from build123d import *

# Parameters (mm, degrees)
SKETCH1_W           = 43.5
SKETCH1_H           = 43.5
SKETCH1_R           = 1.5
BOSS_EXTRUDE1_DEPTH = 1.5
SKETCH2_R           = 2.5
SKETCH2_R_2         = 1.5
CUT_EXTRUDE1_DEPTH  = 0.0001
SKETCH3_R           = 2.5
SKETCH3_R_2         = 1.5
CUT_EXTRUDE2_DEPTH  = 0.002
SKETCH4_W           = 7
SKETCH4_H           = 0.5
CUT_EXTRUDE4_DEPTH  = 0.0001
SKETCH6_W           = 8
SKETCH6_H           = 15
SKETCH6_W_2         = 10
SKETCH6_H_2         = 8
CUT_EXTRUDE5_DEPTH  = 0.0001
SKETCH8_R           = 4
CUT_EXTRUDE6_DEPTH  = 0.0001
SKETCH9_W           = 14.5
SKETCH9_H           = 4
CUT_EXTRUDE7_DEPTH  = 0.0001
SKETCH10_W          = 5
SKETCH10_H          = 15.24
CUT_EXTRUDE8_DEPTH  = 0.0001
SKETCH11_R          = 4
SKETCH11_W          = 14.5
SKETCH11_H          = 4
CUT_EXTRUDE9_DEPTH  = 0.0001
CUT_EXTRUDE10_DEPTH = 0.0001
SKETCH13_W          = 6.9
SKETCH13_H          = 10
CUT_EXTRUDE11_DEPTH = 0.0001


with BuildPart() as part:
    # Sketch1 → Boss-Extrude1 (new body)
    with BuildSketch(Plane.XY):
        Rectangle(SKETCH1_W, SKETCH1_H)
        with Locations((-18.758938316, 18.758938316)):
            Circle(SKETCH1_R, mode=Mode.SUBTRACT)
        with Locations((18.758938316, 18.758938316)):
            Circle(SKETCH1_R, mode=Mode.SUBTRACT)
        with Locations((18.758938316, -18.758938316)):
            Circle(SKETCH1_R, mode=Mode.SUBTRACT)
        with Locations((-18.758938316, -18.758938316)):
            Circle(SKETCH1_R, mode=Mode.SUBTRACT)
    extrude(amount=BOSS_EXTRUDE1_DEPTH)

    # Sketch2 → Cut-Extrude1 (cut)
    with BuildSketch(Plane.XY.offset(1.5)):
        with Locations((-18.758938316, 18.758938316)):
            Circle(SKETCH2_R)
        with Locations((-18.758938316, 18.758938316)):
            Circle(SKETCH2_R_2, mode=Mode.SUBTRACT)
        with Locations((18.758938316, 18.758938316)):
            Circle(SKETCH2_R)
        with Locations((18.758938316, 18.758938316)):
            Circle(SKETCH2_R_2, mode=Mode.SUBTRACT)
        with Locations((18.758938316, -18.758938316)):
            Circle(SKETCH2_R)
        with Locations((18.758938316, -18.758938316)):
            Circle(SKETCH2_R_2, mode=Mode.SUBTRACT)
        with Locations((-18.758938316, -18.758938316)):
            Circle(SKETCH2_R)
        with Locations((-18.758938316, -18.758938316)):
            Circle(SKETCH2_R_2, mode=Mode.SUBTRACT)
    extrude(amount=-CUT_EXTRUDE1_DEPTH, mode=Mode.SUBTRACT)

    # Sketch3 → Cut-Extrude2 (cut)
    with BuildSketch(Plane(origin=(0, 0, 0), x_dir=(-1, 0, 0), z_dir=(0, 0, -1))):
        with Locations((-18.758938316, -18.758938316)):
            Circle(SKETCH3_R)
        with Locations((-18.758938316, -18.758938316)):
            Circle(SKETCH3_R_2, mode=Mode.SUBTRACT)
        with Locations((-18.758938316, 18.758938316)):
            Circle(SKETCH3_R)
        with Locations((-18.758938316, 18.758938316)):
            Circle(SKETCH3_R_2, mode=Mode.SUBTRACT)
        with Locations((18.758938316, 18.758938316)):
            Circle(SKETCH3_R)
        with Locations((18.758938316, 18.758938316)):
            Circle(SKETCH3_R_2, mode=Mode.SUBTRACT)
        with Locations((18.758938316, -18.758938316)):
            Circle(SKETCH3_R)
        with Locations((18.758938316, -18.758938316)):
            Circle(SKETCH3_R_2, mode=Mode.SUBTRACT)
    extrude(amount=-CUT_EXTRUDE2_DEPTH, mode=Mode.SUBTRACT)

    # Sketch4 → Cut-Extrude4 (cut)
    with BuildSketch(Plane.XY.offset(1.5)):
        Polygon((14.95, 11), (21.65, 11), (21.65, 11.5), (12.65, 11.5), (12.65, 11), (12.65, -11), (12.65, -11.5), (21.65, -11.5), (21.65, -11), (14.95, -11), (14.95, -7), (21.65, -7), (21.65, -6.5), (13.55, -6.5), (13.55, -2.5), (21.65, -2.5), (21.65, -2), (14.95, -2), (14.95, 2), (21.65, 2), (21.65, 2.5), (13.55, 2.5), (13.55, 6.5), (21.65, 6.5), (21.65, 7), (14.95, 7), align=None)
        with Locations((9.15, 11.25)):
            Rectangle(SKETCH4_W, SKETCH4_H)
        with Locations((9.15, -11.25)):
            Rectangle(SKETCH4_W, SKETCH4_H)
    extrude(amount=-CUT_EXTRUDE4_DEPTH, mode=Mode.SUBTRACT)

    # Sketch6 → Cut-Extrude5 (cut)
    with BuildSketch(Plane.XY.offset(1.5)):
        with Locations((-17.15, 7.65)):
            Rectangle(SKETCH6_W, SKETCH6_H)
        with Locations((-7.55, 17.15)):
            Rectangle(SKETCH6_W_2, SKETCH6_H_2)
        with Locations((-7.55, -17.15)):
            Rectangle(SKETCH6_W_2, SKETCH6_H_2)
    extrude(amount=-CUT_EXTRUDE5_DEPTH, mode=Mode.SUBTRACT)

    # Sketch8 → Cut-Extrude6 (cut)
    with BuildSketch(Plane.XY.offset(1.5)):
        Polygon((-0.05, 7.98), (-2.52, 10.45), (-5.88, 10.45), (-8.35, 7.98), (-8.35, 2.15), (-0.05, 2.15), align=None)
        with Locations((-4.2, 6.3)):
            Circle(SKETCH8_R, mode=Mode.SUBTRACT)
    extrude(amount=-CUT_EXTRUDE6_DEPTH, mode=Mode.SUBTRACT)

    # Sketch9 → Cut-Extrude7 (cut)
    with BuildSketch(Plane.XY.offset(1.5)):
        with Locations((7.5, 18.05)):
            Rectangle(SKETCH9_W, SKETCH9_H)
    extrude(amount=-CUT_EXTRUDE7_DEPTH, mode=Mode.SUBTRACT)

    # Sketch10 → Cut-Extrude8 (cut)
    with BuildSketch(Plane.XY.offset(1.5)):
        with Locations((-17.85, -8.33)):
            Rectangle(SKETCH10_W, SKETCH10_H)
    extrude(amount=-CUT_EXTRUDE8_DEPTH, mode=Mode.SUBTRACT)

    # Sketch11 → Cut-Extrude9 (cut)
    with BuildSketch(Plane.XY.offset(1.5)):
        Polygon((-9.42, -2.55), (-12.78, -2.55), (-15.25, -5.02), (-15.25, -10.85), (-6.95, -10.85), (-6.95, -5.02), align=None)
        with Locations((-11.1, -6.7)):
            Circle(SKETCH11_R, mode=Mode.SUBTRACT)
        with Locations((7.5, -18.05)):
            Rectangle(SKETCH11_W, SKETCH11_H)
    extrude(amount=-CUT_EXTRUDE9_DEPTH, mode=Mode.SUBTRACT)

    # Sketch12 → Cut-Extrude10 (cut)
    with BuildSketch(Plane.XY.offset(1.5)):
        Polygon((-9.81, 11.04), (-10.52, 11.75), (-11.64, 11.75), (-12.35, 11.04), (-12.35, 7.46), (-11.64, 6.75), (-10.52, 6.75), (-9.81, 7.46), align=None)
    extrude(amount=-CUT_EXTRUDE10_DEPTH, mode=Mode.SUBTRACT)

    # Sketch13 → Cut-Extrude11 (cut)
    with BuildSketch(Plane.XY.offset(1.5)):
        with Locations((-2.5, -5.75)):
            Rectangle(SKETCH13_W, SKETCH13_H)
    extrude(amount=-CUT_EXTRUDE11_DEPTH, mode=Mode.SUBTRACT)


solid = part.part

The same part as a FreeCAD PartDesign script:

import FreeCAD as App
import Part
import Sketcher
Q = App.Units.Quantity

doc = App.newDocument("Part")
params = doc.addObject("Spreadsheet::Sheet", "Params")
for row, (alias, value) in enumerate([
    ("sketch1_diameter", "3 mm"),
    ("sketch1_width", "43.5 mm"),
    ("pad1_length", "1.5 mm"),
    ("sketch2_diameter", "5 mm"),
    ("sketch2_diameter2", "3 mm"),
    ("pocket1_length", "0.0001 mm"),
    ("sketch3_diameter", "5 mm"),
    ("sketch3_diameter2", "3 mm"),
    ("pocket2_length", "0.002 mm"),
    ("sketch4_width", "16 mm"),
    ("sketch4_width2", "7 mm"),
    ("sketch4_height", "22 mm"),
    ("sketch4_height2", "4 mm"),
    ("sketch4_width3", "6.7 mm"),
    ("pocket3_length", "0.0001 mm"),
    ("sketch5_width", "8 mm"),
    ("sketch5_width2", "10 mm"),
    ("sketch5_height", "15 mm"),
    ("pocket4_length", "0.0001 mm"),
    ("sketch6_diameter", "8 mm"),
    ("sketch6_width", "8.3 mm"),
    ("sketch6_width2", "3.36 mm"),
    ("sketch6_height", "5.83 mm"),
    ("pocket5_length", "0.0001 mm"),
    ("sketch7_height", "4 mm"),
    ("sketch7_width", "14.5 mm"),
    ("pocket6_length", "0.0001 mm"),
    ("sketch8_width", "5 mm"),
    ("sketch8_height", "15.24 mm"),
    ("pocket7_length", "0.0001 mm"),
    ("sketch9_diameter", "8 mm"),
    ("sketch9_height", "4 mm"),
    ("sketch9_width", "8.3 mm"),
    ("sketch9_width2", "14.5 mm"),
    ("sketch9_width3", "3.36 mm"),
    ("pocket8_length", "0.0001 mm"),
    ("sketch10_width", "1.12 mm"),
    ("sketch10_height", "3.58 mm"),
    ("pocket9_length", "0.0001 mm"),
    ("sketch11_height", "10 mm"),
    ("sketch11_width", "6.9 mm"),
    ("pocket10_length", "0.0001 mm"),
], start=1):
    params.set(f"A{row}", alias)
    params.set(f"B{row}", "=" + value)
    params.setAlias(f"B{row}", alias)

body = doc.addObject("PartDesign::Body", "Body")

sketch1 = body.newObject("Sketcher::SketchObject", "Sketch")
sketch1.AttachmentSupport = (doc.getObject("XY_Plane"), [""])
sketch1.MapMode = "FlatFace"
sketch1.addGeometry([
    Part.LineSegment(App.Vector(-21.8, 21.8, 0), App.Vector(-21.8, -21.8, 0)),
    Part.LineSegment(App.Vector(-21.8, -21.8, 0), App.Vector(21.8, -21.8, 0)),
    Part.LineSegment(App.Vector(21.8, -21.8, 0), App.Vector(21.8, 21.8, 0)),
    Part.LineSegment(App.Vector(21.8, 21.8, 0), App.Vector(-21.8, 21.8, 0)),
    Part.Circle(App.Vector(-18.8, -18.8, 0), App.Vector(0, 0, 1), 1.5),
    Part.Circle(App.Vector(18.8, -18.8, 0), App.Vector(0, 0, 1), 1.5),
    Part.Circle(App.Vector(-18.8, 18.8, 0), App.Vector(0, 0, 1), 1.5),
    Part.Circle(App.Vector(18.8, 18.8, 0), App.Vector(0, 0, 1), 1.5),
], False)
sketch1.addConstraint([
    Sketcher.Constraint("Coincident", 0, 2, 1, 1),
    Sketcher.Constraint("Coincident", 1, 2, 2, 1),
    Sketcher.Constraint("Coincident", 2, 2, 3, 1),
    Sketcher.Constraint("Coincident", 3, 2, 0, 1),
    Sketcher.Constraint("Vertical", 0),
    Sketcher.Constraint("Horizontal", 1),
    Sketcher.Constraint("Vertical", 2),
    Sketcher.Constraint("Horizontal", 3),
    Sketcher.Constraint("Equal", 4, 5),
    Sketcher.Constraint("Equal", 5, 6),
    Sketcher.Constraint("Equal", 6, 7),
    Sketcher.Constraint("Symmetric", 5, 3, 6, 3, -1, 1),
    Sketcher.Constraint("Symmetric", 4, 3, 7, 3, -1, 1),
    Sketcher.Constraint("Symmetric", 0, 2, 2, 2, -1, 1),
    Sketcher.Constraint("Symmetric", 4, 3, 5, 3, -2),
    Sketcher.Constraint("Equal", 3, 0),
    Sketcher.Constraint("Diameter", 4, Q("3 mm")),
    Sketcher.Constraint("DistanceX", 1, 1, 1, 2, Q("43.5 mm")),
    Sketcher.Constraint("DistanceX", 4, 3, -1, 1, Q("18.758938 mm")),
    Sketcher.Constraint("DistanceY", 4, 3, -1, 1, Q("18.758938 mm")),
])
sketch1.setExpression("Constraints[16]", "Params.sketch1_diameter")
sketch1.setExpression("Constraints[17]", "Params.sketch1_width")
pad1 = body.newObject("PartDesign::Pad", "Pad")
pad1.Profile = sketch1
pad1.setExpression("Length", "Params.pad1_length")

sketch2 = body.newObject("Sketcher::SketchObject", "Sketch001")
sketch2.AttachmentSupport = (doc.getObject("XY_Plane"), [""])
sketch2.MapMode = "FlatFace"
sketch2.AttachmentOffset = App.Placement(App.Vector(0, 0, 1.5), App.Rotation())
sketch2.addGeometry([
    Part.Circle(App.Vector(-18.8, 18.8, 0), App.Vector(0, 0, 1), 2.5),
    Part.Circle(App.Vector(-18.8, 18.8, 0), App.Vector(0, 0, 1), 1.5),
    Part.Circle(App.Vector(18.8, 18.8, 0), App.Vector(0, 0, 1), 2.5),
    Part.Circle(App.Vector(18.8, 18.8, 0), App.Vector(0, 0, 1), 1.5),
    Part.Circle(App.Vector(18.8, -18.8, 0), App.Vector(0, 0, 1), 2.5),
    Part.Circle(App.Vector(18.8, -18.8, 0), App.Vector(0, 0, 1), 1.5),
    Part.Circle(App.Vector(-18.8, -18.8, 0), App.Vector(0, 0, 1), 2.5),
    Part.Circle(App.Vector(-18.8, -18.8, 0), App.Vector(0, 0, 1), 1.5),
], False)
sketch2.addConstraint([
    Sketcher.Constraint("Coincident", 1, 3, 0, 3),
    Sketcher.Constraint("Coincident", 3, 3, 2, 3),
    Sketcher.Constraint("Coincident", 5, 3, 4, 3),
    Sketcher.Constraint("Coincident", 7, 3, 6, 3),
    Sketcher.Constraint("Equal", 0, 2),
    Sketcher.Constraint("Equal", 1, 3),
    Sketcher.Constraint("Equal", 2, 4),
    Sketcher.Constraint("Equal", 3, 5),
    Sketcher.Constraint("Equal", 4, 6),
    Sketcher.Constraint("Equal", 5, 7),
    Sketcher.Constraint("Symmetric", 0, 3, 4, 3, -1, 1),
    Sketcher.Constraint("Symmetric", 2, 3, 6, 3, -1, 1),
    Sketcher.Constraint("Symmetric", 0, 3, 2, 3, -2),
    Sketcher.Constraint("Diameter", 0, Q("5 mm")),
    Sketcher.Constraint("Diameter", 1, Q("3 mm")),
    Sketcher.Constraint("DistanceX", 0, 3, -1, 1, Q("18.758938 mm")),
    Sketcher.Constraint("DistanceY", -1, 1, 0, 3, Q("18.758938 mm")),
])
sketch2.setExpression("Constraints[13]", "Params.sketch2_diameter")
sketch2.setExpression("Constraints[14]", "Params.sketch2_diameter2")
pocket1 = body.newObject("PartDesign::Pocket", "Pocket")
pocket1.Profile = sketch2
pocket1.setExpression("Length", "Params.pocket1_length")

sketch3 = body.newObject("Sketcher::SketchObject", "Sketch002")
sketch3.AttachmentSupport = (doc.getObject("XY_Plane"), [""])
sketch3.MapMode = "FlatFace"
sketch3.addGeometry([
    Part.Circle(App.Vector(18.8, -18.8, 0), App.Vector(0, 0, 1), 2.5),
    Part.Circle(App.Vector(18.8, -18.8, 0), App.Vector(0, 0, 1), 1.5),
    Part.Circle(App.Vector(18.8, 18.8, 0), App.Vector(0, 0, 1), 2.5),
    Part.Circle(App.Vector(18.8, 18.8, 0), App.Vector(0, 0, 1), 1.5),
    Part.Circle(App.Vector(-18.8, 18.8, 0), App.Vector(0, 0, 1), 2.5),
    Part.Circle(App.Vector(-18.8, 18.8, 0), App.Vector(0, 0, 1), 1.5),
    Part.Circle(App.Vector(-18.8, -18.8, 0), App.Vector(0, 0, 1), 2.5),
    Part.Circle(App.Vector(-18.8, -18.8, 0), App.Vector(0, 0, 1), 1.5),
], False)
sketch3.addConstraint([
    Sketcher.Constraint("Coincident", 1, 3, 0, 3),
    Sketcher.Constraint("Coincident", 3, 3, 2, 3),
    Sketcher.Constraint("Coincident", 5, 3, 4, 3),
    Sketcher.Constraint("Coincident", 7, 3, 6, 3),
    Sketcher.Constraint("Equal", 0, 2),
    Sketcher.Constraint("Equal", 1, 3),
    Sketcher.Constraint("Equal", 2, 4),
    Sketcher.Constraint("Equal", 3, 5),
    Sketcher.Constraint("Equal", 4, 6),
    Sketcher.Constraint("Equal", 5, 7),
    Sketcher.Constraint("Symmetric", 0, 3, 4, 3, -1, 1),
    Sketcher.Constraint("Symmetric", 2, 3, 6, 3, -1, 1),
    Sketcher.Constraint("Symmetric", 2, 3, 4, 3, -2),
    Sketcher.Constraint("Diameter", 0, Q("5 mm")),
    Sketcher.Constraint("Diameter", 1, Q("3 mm")),
    Sketcher.Constraint("DistanceX", -1, 1, 0, 3, Q("18.758938 mm")),
    Sketcher.Constraint("DistanceY", 0, 3, -1, 1, Q("18.758938 mm")),
])
sketch3.setExpression("Constraints[13]", "Params.sketch3_diameter")
sketch3.setExpression("Constraints[14]", "Params.sketch3_diameter2")
pocket2 = body.newObject("PartDesign::Pocket", "Pocket001")
pocket2.Profile = sketch3
pocket2.setExpression("Length", "Params.pocket2_length")
pocket2.Reversed = True

sketch4 = body.newObject("Sketcher::SketchObject", "Sketch003")
sketch4.AttachmentSupport = (doc.getObject("XY_Plane"), [""])
sketch4.MapMode = "FlatFace"
sketch4.AttachmentOffset = App.Placement(App.Vector(0, 0, 1.5), App.Rotation())
sketch4.addGeometry([
    Part.LineSegment(App.Vector(14.9, 11, 0), App.Vector(21.6, 11, 0)),
    Part.LineSegment(App.Vector(21.6, 11, 0), App.Vector(21.6, 11.5, 0)),
    Part.LineSegment(App.Vector(21.6, 11.5, 0), App.Vector(5.7, 11.5, 0)),
    Part.LineSegment(App.Vector(5.7, 11.5, 0), App.Vector(5.7, 11, 0)),
    Part.LineSegment(App.Vector(5.7, 11, 0), App.Vector(12.7, 11, 0)),
    Part.LineSegment(App.Vector(12.7, 11, 0), App.Vector(12.7, -11, 0)),
    Part.LineSegment(App.Vector(12.7, -11, 0), App.Vector(5.7, -11, 0)),
    Part.LineSegment(App.Vector(5.7, -11, 0), App.Vector(5.7, -11.5, 0)),
    Part.LineSegment(App.Vector(5.7, -11.5, 0), App.Vector(21.6, -11.5, 0)),
    Part.LineSegment(App.Vector(21.6, -11.5, 0), App.Vector(21.6, -11, 0)),
    Part.LineSegment(App.Vector(21.6, -11, 0), App.Vector(14.9, -11, 0)),
    Part.LineSegment(App.Vector(14.9, -11, 0), App.Vector(14.9, -7, 0)),
    Part.LineSegment(App.Vector(14.9, -7, 0), App.Vector(21.6, -7, 0)),
    Part.LineSegment(App.Vector(21.6, -7, 0), App.Vector(21.6, -6.5, 0)),
    Part.LineSegment(App.Vector(21.6, -6.5, 0), App.Vector(13.6, -6.5, 0)),
    Part.LineSegment(App.Vector(13.6, -6.5, 0), App.Vector(13.6, -2.5, 0)),
    Part.LineSegment(App.Vector(13.6, -2.5, 0), App.Vector(21.6, -2.5, 0)),
    Part.LineSegment(App.Vector(21.6, -2.5, 0), App.Vector(21.6, -2, 0)),
    Part.LineSegment(App.Vector(21.6, -2, 0), App.Vector(14.9, -2, 0)),
    Part.LineSegment(App.Vector(14.9, -2, 0), App.Vector(14.9, 2, 0)),
    Part.LineSegment(App.Vector(14.9, 2, 0), App.Vector(21.6, 2, 0)),
    Part.LineSegment(App.Vector(21.6, 2, 0), App.Vector(21.6, 2.5, 0)),
    Part.LineSegment(App.Vector(21.6, 2.5, 0), App.Vector(13.6, 2.5, 0)),
    Part.LineSegment(App.Vector(13.6, 2.5, 0), App.Vector(13.6, 6.5, 0)),
    Part.LineSegment(App.Vector(13.6, 6.5, 0), App.Vector(21.6, 6.5, 0)),
    Part.LineSegment(App.Vector(21.6, 6.5, 0), App.Vector(21.6, 7, 0)),
    Part.LineSegment(App.Vector(21.6, 7, 0), App.Vector(14.9, 7, 0)),
    Part.LineSegment(App.Vector(14.9, 7, 0), App.Vector(14.9, 11, 0)),
], False)
sketch4.addConstraint([
    Sketcher.Constraint("Coincident", 0, 2, 1, 1),
    Sketcher.Constraint("Coincident", 1, 2, 2, 1),
    Sketcher.Constraint("Coincident", 2, 2, 3, 1),
    Sketcher.Constraint("Coincident", 3, 2, 4, 1),
    Sketcher.Constraint("Coincident", 4, 2, 5, 1),
    Sketcher.Constraint("Coincident", 5, 2, 6, 1),
    Sketcher.Constraint("Coincident", 6, 2, 7, 1),
    Sketcher.Constraint("Coincident", 7, 2, 8, 1),
    Sketcher.Constraint("Coincident", 8, 2, 9, 1),
    Sketcher.Constraint("Coincident", 9, 2, 10, 1),
    Sketcher.Constraint("Coincident", 10, 2, 11, 1),
    Sketcher.Constraint("Coincident", 11, 2, 12, 1),
    Sketcher.Constraint("Coincident", 12, 2, 13, 1),
    Sketcher.Constraint("Coincident", 13, 2, 14, 1),
    Sketcher.Constraint("Coincident", 14, 2, 15, 1),
    Sketcher.Constraint("Coincident", 15, 2, 16, 1),
    Sketcher.Constraint("Coincident", 16, 2, 17, 1),
    Sketcher.Constraint("Coincident", 17, 2, 18, 1),
    Sketcher.Constraint("Coincident", 18, 2, 19, 1),
    Sketcher.Constraint("Coincident", 19, 2, 20, 1),
    Sketcher.Constraint("Coincident", 20, 2, 21, 1),
    Sketcher.Constraint("Coincident", 21, 2, 22, 1),
    Sketcher.Constraint("Coincident", 22, 2, 23, 1),
    Sketcher.Constraint("Coincident", 23, 2, 24, 1),
    Sketcher.Constraint("Coincident", 24, 2, 25, 1),
    Sketcher.Constraint("Coincident", 25, 2, 26, 1),
    Sketcher.Constraint("Coincident", 26, 2, 27, 1),
    Sketcher.Constraint("Coincident", 27, 2, 0, 1),
    Sketcher.Constraint("Horizontal", 0),
    Sketcher.Constraint("Vertical", 1),
    Sketcher.Constraint("Horizontal", 2),
    Sketcher.Constraint("Vertical", 3),
    Sketcher.Constraint("Horizontal", 4),
    Sketcher.Constraint("Vertical", 5),
    Sketcher.Constraint("Horizontal", 6),
    Sketcher.Constraint("Vertical", 7),
    Sketcher.Constraint("Horizontal", 8),
    Sketcher.Constraint("Vertical", 9),
    Sketcher.Constraint("Horizontal", 10),
    Sketcher.Constraint("Vertical", 11),
    Sketcher.Constraint("Horizontal", 12),
    Sketcher.Constraint("Vertical", 13),
    Sketcher.Constraint("Horizontal", 14),
    Sketcher.Constraint("Vertical", 15),
    Sketcher.Constraint("Horizontal", 16),
    Sketcher.Constraint("Vertical", 17),
    Sketcher.Constraint("Horizontal", 18),
    Sketcher.Constraint("Vertical", 19),
    Sketcher.Constraint("Horizontal", 20),
    Sketcher.Constraint("Vertical", 21),
    Sketcher.Constraint("Horizontal", 22),
    Sketcher.Constraint("Vertical", 23),
    Sketcher.Constraint("Horizontal", 24),
    Sketcher.Constraint("Vertical", 25),
    Sketcher.Constraint("Horizontal", 26),
    Sketcher.Constraint("Vertical", 27),
    Sketcher.Constraint("Symmetric", 3, 2, 6, 2, -1),
    Sketcher.Constraint("Symmetric", 1, 2, 8, 2, -1),
    Sketcher.Constraint("Symmetric", 17, 2, 20, 2, -1),
    Sketcher.Constraint("Symmetric", 15, 2, 22, 2, -1),
    Sketcher.Constraint("Symmetric", 13, 2, 24, 2, -1),
    Sketcher.Constraint("Symmetric", 11, 2, 26, 2, -1),
    Sketcher.Constraint("Horizontal", 0, 2, 3, 2),
    Sketcher.Constraint("Horizontal", 6, 2, 9, 2),
    Sketcher.Constraint("Vertical", 9, 2, 12, 2),
    Sketcher.Constraint("Vertical", 13, 2, 16, 2),
    Sketcher.Constraint("Vertical", 11, 2, 18, 2),
    Sketcher.Constraint("Equal", 9, 13),
    Sketcher.Constraint("Equal", 11, 15),
    Sketcher.Constraint("Equal", 13, 17),
    Sketcher.Constraint("Equal", 15, 19),
    Sketcher.Constraint("DistanceX", 2, 2, 2, 1, Q("16 mm")),
    Sketcher.Constraint("DistanceX", 4, 1, 4, 2, Q("7 mm")),
    Sketcher.Constraint("DistanceY", 5, 2, 5, 1, Q("22 mm")),
    Sketcher.Constraint("DistanceY", 11, 1, 11, 2, Q("4 mm")),
    Sketcher.Constraint("DistanceX", 0, 1, 0, 2, Q("6.7 mm")),
    Sketcher.Constraint("DistanceX", 14, 2, 14, 1, Q("8.1 mm")),
    Sketcher.Constraint("DistanceX", -1, 1, 0, 2, Q("21.65 mm")),
])
sketch4.setExpression("Constraints[71]", "Params.sketch4_width")
sketch4.setExpression("Constraints[72]", "Params.sketch4_width2")
sketch4.setExpression("Constraints[73]", "Params.sketch4_height")
sketch4.setExpression("Constraints[74]", "Params.sketch4_height2")
sketch4.setExpression("Constraints[75]", "Params.sketch4_width3")
pocket3 = body.newObject("PartDesign::Pocket", "Pocket002")
pocket3.Profile = sketch4
pocket3.setExpression("Length", "Params.pocket3_length")

sketch5 = body.newObject("Sketcher::SketchObject", "Sketch004")
sketch5.AttachmentSupport = (doc.getObject("XY_Plane"), [""])
sketch5.MapMode = "FlatFace"
sketch5.AttachmentOffset = App.Placement(App.Vector(0, 0, 1.5), App.Rotation())
sketch5.addGeometry([
    Part.LineSegment(App.Vector(-21, 15, 0), App.Vector(-21, 0, 0)),
    Part.LineSegment(App.Vector(-21, 0, 0), App.Vector(-13, 0, 0)),
    Part.LineSegment(App.Vector(-13, 0, 0), App.Vector(-13, 15, 0)),
    Part.LineSegment(App.Vector(-13, 15, 0), App.Vector(-21, 15, 0)),
    Part.LineSegment(App.Vector(-13, 21, 0), App.Vector(-13, 13, 0)),
    Part.LineSegment(App.Vector(-13, 13, 0), App.Vector(-3, 13, 0)),
    Part.LineSegment(App.Vector(-3, 13, 0), App.Vector(-3, 21, 0)),
    Part.LineSegment(App.Vector(-3, 21, 0), App.Vector(-13, 21, 0)),
    Part.LineSegment(App.Vector(-13, -13, 0), App.Vector(-13, -21, 0)),
    Part.LineSegment(App.Vector(-13, -21, 0), App.Vector(-3, -21, 0)),
    Part.LineSegment(App.Vector(-3, -21, 0), App.Vector(-3, -13, 0)),
    Part.LineSegment(App.Vector(-3, -13, 0), App.Vector(-13, -13, 0)),
], False)
sketch5.addConstraint([
    Sketcher.Constraint("Coincident", 0, 2, 1, 1),
    Sketcher.Constraint("Coincident", 1, 2, 2, 1),
    Sketcher.Constraint("Coincident", 2, 2, 3, 1),
    Sketcher.Constraint("Coincident", 3, 2, 0, 1),
    Sketcher.Constraint("Coincident", 4, 2, 5, 1),
    Sketcher.Constraint("Coincident", 5, 2, 6, 1),
    Sketcher.Constraint("Coincident", 6, 2, 7, 1),
    Sketcher.Constraint("Coincident", 7, 2, 4, 1),
    Sketcher.Constraint("Coincident", 8, 2, 9, 1),
    Sketcher.Constraint("Coincident", 9, 2, 10, 1),
    Sketcher.Constraint("Coincident", 10, 2, 11, 1),
    Sketcher.Constraint("Coincident", 11, 2, 8, 1),
    Sketcher.Constraint("Vertical", 0),
    Sketcher.Constraint("Horizontal", 1),
    Sketcher.Constraint("Vertical", 2),
    Sketcher.Constraint("Horizontal", 3),
    Sketcher.Constraint("Vertical", 4),
    Sketcher.Constraint("Horizontal", 5),
    Sketcher.Constraint("Vertical", 6),
    Sketcher.Constraint("Horizontal", 7),
    Sketcher.Constraint("Vertical", 8),
    Sketcher.Constraint("Horizontal", 9),
    Sketcher.Constraint("Vertical", 10),
    Sketcher.Constraint("Horizontal", 11),
    Sketcher.Constraint("Symmetric", 7, 2, 8, 2, -1),
    Sketcher.Constraint("Symmetric", 5, 2, 10, 2, -1),
    Sketcher.Constraint("Equal", 3, 4),
    Sketcher.Constraint("DistanceX", 1, 1, 1, 2, Q("8 mm")),
    Sketcher.Constraint("DistanceX", 5, 1, 5, 2, Q("10 mm")),
    Sketcher.Constraint("DistanceY", 0, 2, 0, 1, Q("15 mm")),
    Sketcher.Constraint("DistanceY", 4, 2, 2, 2, Q("2 mm")),
    Sketcher.Constraint("DistanceX", 2, 2, 4, 2, Q("0.6 mm")),
    Sketcher.Constraint("DistanceY", 8, 2, 1, 2, Q("21.3 mm")),
    Sketcher.Constraint("DistanceX", 0, 2, -1, 1, Q("21.15 mm")),
])
sketch5.setExpression("Constraints[27]", "Params.sketch5_width")
sketch5.setExpression("Constraints[28]", "Params.sketch5_width2")
sketch5.setExpression("Constraints[29]", "Params.sketch5_height")
pocket4 = body.newObject("PartDesign::Pocket", "Pocket003")
pocket4.Profile = sketch5
pocket4.setExpression("Length", "Params.pocket4_length")

sketch6 = body.newObject("Sketcher::SketchObject", "Sketch005")
sketch6.AttachmentSupport = (doc.getObject("XY_Plane"), [""])
sketch6.MapMode = "FlatFace"
sketch6.AttachmentOffset = App.Placement(App.Vector(0, 0, 1.5), App.Rotation())
sketch6.addGeometry([
    Part.LineSegment(App.Vector(-0.1, 8, 0), App.Vector(-2.5, 10.4, 0)),
    Part.LineSegment(App.Vector(-2.5, 10.4, 0), App.Vector(-5.9, 10.4, 0)),
    Part.LineSegment(App.Vector(-5.9, 10.4, 0), App.Vector(-8.3, 8, 0)),
    Part.LineSegment(App.Vector(-8.3, 8, 0), App.Vector(-8.3, 2.1, 0)),
    Part.LineSegment(App.Vector(-8.3, 2.1, 0), App.Vector(-0.1, 2.1, 0)),
    Part.LineSegment(App.Vector(-0.1, 2.1, 0), App.Vector(-0.1, 8, 0)),
    Part.Circle(App.Vector(-4.2, 6.3, 0), App.Vector(0, 0, 1), 4),
], False)
sketch6.addConstraint([
    Sketcher.Constraint("Coincident", 0, 2, 1, 1),
    Sketcher.Constraint("Coincident", 1, 2, 2, 1),
    Sketcher.Constraint("Coincident", 2, 2, 3, 1),
    Sketcher.Constraint("Coincident", 3, 2, 4, 1),
    Sketcher.Constraint("Coincident", 4, 2, 5, 1),
    Sketcher.Constraint("Coincident", 5, 2, 0, 1),
    Sketcher.Constraint("Horizontal", 1),
    Sketcher.Constraint("Vertical", 3),
    Sketcher.Constraint("Horizontal", 4),
    Sketcher.Constraint("Vertical", 5),
    Sketcher.Constraint("Perpendicular", 0, 2),
    Sketcher.Constraint("Horizontal", 2, 2, 5, 2),
    Sketcher.Constraint("Equal", 0, 2),
    Sketcher.Constraint("Diameter", 6, Q("8 mm")),
    Sketcher.Constraint("DistanceX", 4, 1, 4, 2, Q("8.3 mm")),
    Sketcher.Constraint("DistanceX", 1, 2, 1, 1, Q("3.36 mm")),
    Sketcher.Constraint("DistanceY", 3, 2, 3, 1, Q("5.83 mm")),
    Sketcher.Constraint("DistanceX", 6, 3, -1, 1, Q("4.2 mm")),
    Sketcher.Constraint("DistanceY", -1, 1, 6, 3, Q("6.3 mm")),
    Sketcher.Constraint("DistanceX", 0, 2, -1, 1, Q("2.52 mm")),
    Sketcher.Constraint("DistanceY", -1, 1, 0, 2, Q("10.45 mm")),
])
sketch6.setExpression("Constraints[13]", "Params.sketch6_diameter")
sketch6.setExpression("Constraints[14]", "Params.sketch6_width")
sketch6.setExpression("Constraints[15]", "Params.sketch6_width2")
sketch6.setExpression("Constraints[16]", "Params.sketch6_height")
pocket5 = body.newObject("PartDesign::Pocket", "Pocket004")
pocket5.Profile = sketch6
pocket5.setExpression("Length", "Params.pocket5_length")

sketch7 = body.newObject("Sketcher::SketchObject", "Sketch006")
sketch7.AttachmentSupport = (doc.getObject("XY_Plane"), [""])
sketch7.MapMode = "FlatFace"
sketch7.AttachmentOffset = App.Placement(App.Vector(0, 0, 1.5), App.Rotation())
sketch7.addGeometry([
    Part.LineSegment(App.Vector(0.2, 20.1, 0), App.Vector(0.2, 16.1, 0)),
    Part.LineSegment(App.Vector(0.2, 16.1, 0), App.Vector(14.8, 16.1, 0)),
    Part.LineSegment(App.Vector(14.8, 16.1, 0), App.Vector(14.8, 20.1, 0)),
    Part.LineSegment(App.Vector(14.8, 20.1, 0), App.Vector(0.2, 20.1, 0)),
], False)
sketch7.addConstraint([
    Sketcher.Constraint("Coincident", 0, 2, 1, 1),
    Sketcher.Constraint("Coincident", 1, 2, 2, 1),
    Sketcher.Constraint("Coincident", 2, 2, 3, 1),
    Sketcher.Constraint("Coincident", 3, 2, 0, 1),
    Sketcher.Constraint("Vertical", 0),
    Sketcher.Constraint("Horizontal", 1),
    Sketcher.Constraint("Vertical", 2),
    Sketcher.Constraint("Horizontal", 3),
    Sketcher.Constraint("DistanceY", 0, 2, 0, 1, Q("4 mm")),
    Sketcher.Constraint("DistanceX", 1, 1, 1, 2, Q("14.5 mm")),
    Sketcher.Constraint("DistanceX", -1, 1, 0, 2, Q("0.25 mm")),
    Sketcher.Constraint("DistanceY", -1, 1, 0, 2, Q("16.05 mm")),
])
sketch7.setExpression("Constraints[8]", "Params.sketch7_height")
sketch7.setExpression("Constraints[9]", "Params.sketch7_width")
pocket6 = body.newObject("PartDesign::Pocket", "Pocket005")
pocket6.Profile = sketch7
pocket6.setExpression("Length", "Params.pocket6_length")

sketch8 = body.newObject("Sketcher::SketchObject", "Sketch007")
sketch8.AttachmentSupport = (doc.getObject("XY_Plane"), [""])
sketch8.MapMode = "FlatFace"
sketch8.AttachmentOffset = App.Placement(App.Vector(0, 0, 1.5), App.Rotation())
sketch8.addGeometry([
    Part.LineSegment(App.Vector(-20, -1, 0), App.Vector(-20, -16, 0)),
    Part.LineSegment(App.Vector(-20, -16, 0), App.Vector(-15, -16, 0)),
    Part.LineSegment(App.Vector(-15, -16, 0), App.Vector(-15, -1, 0)),
    Part.LineSegment(App.Vector(-15, -1, 0), App.Vector(-20, -1, 0)),
], False)
sketch8.addConstraint([
    Sketcher.Constraint("Coincident", 0, 2, 1, 1),
    Sketcher.Constraint("Coincident", 1, 2, 2, 1),
    Sketcher.Constraint("Coincident", 2, 2, 3, 1),
    Sketcher.Constraint("Coincident", 3, 2, 0, 1),
    Sketcher.Constraint("Vertical", 0),
    Sketcher.Constraint("Horizontal", 1),
    Sketcher.Constraint("Vertical", 2),
    Sketcher.Constraint("Horizontal", 3),
    Sketcher.Constraint("DistanceX", 1, 1, 1, 2, Q("5 mm")),
    Sketcher.Constraint("DistanceY", 0, 2, 0, 1, Q("15.24 mm")),
    Sketcher.Constraint("DistanceX", 0, 2, -1, 1, Q("20.35 mm")),
    Sketcher.Constraint("DistanceY", 0, 2, -1, 1, Q("15.95 mm")),
])
sketch8.setExpression("Constraints[8]", "Params.sketch8_width")
sketch8.setExpression("Constraints[9]", "Params.sketch8_height")
pocket7 = body.newObject("PartDesign::Pocket", "Pocket006")
pocket7.Profile = sketch8
pocket7.setExpression("Length", "Params.pocket7_length")

sketch9 = body.newObject("Sketcher::SketchObject", "Sketch008")
sketch9.AttachmentSupport = (doc.getObject("XY_Plane"), [""])
sketch9.MapMode = "FlatFace"
sketch9.AttachmentOffset = App.Placement(App.Vector(0, 0, 1.5), App.Rotation())
sketch9.addGeometry([
    Part.LineSegment(App.Vector(-9.4, -2.5, 0), App.Vector(-12.8, -2.5, 0)),
    Part.LineSegment(App.Vector(-12.8, -2.5, 0), App.Vector(-15.2, -5, 0)),
    Part.LineSegment(App.Vector(-15.2, -5, 0), App.Vector(-15.2, -10.8, 0)),
    Part.LineSegment(App.Vector(-15.2, -10.8, 0), App.Vector(-7, -10.8, 0)),
    Part.LineSegment(App.Vector(-7, -10.8, 0), App.Vector(-7, -5, 0)),
    Part.LineSegment(App.Vector(-7, -5, 0), App.Vector(-9.4, -2.5, 0)),
    Part.Circle(App.Vector(-11.1, -6.7, 0), App.Vector(0, 0, 1), 4),
    Part.LineSegment(App.Vector(0.2, -16.1, 0), App.Vector(0.2, -20.1, 0)),
    Part.LineSegment(App.Vector(0.2, -20.1, 0), App.Vector(14.8, -20.1, 0)),
    Part.LineSegment(App.Vector(14.8, -20.1, 0), App.Vector(14.8, -16.1, 0)),
    Part.LineSegment(App.Vector(14.8, -16.1, 0), App.Vector(0.2, -16.1, 0)),
], False)
sketch9.addConstraint([
    Sketcher.Constraint("Coincident", 0, 2, 1, 1),
    Sketcher.Constraint("Coincident", 1, 2, 2, 1),
    Sketcher.Constraint("Coincident", 2, 2, 3, 1),
    Sketcher.Constraint("Coincident", 3, 2, 4, 1),
    Sketcher.Constraint("Coincident", 4, 2, 5, 1),
    Sketcher.Constraint("Coincident", 5, 2, 0, 1),
    Sketcher.Constraint("Coincident", 7, 2, 8, 1),
    Sketcher.Constraint("Coincident", 8, 2, 9, 1),
    Sketcher.Constraint("Coincident", 9, 2, 10, 1),
    Sketcher.Constraint("Coincident", 10, 2, 7, 1),
    Sketcher.Constraint("Horizontal", 0),
    Sketcher.Constraint("Vertical", 2),
    Sketcher.Constraint("Horizontal", 3),
    Sketcher.Constraint("Vertical", 4),
    Sketcher.Constraint("Vertical", 7),
    Sketcher.Constraint("Horizontal", 8),
    Sketcher.Constraint("Vertical", 9),
    Sketcher.Constraint("Horizontal", 10),
    Sketcher.Constraint("Perpendicular", 1, 5),
    Sketcher.Constraint("Horizontal", 1, 2, 4, 2),
    Sketcher.Constraint("Equal", 1, 5),
    Sketcher.Constraint("Diameter", 6, Q("8 mm")),
    Sketcher.Constraint("DistanceY", 7, 2, 7, 1, Q("4 mm")),
    Sketcher.Constraint("DistanceX", 3, 1, 3, 2, Q("8.3 mm")),
    Sketcher.Constraint("DistanceX", 8, 1, 8, 2, Q("14.5 mm")),
    Sketcher.Constraint("DistanceX", 0, 2, 0, 1, Q("3.36 mm")),
    Sketcher.Constraint("DistanceY", 2, 2, 2, 1, Q("5.83 mm")),
    Sketcher.Constraint("DistanceX", 6, 3, -1, 1, Q("11.1 mm")),
    Sketcher.Constraint("DistanceY", 6, 3, -1, 1, Q("6.7 mm")),
    Sketcher.Constraint("DistanceX", 3, 2, 7, 2, Q("7.2 mm")),
    Sketcher.Constraint("DistanceY", 7, 2, 3, 2, Q("9.2 mm")),
    Sketcher.Constraint("DistanceX", 0, 2, -1, 1, Q("12.78 mm")),
    Sketcher.Constraint("DistanceY", 0, 2, -1, 1, Q("2.55 mm")),
])
sketch9.setExpression("Constraints[21]", "Params.sketch9_diameter")
sketch9.setExpression("Constraints[22]", "Params.sketch9_height")
sketch9.setExpression("Constraints[23]", "Params.sketch9_width")
sketch9.setExpression("Constraints[24]", "Params.sketch9_width2")
sketch9.setExpression("Constraints[25]", "Params.sketch9_width3")
pocket8 = body.newObject("PartDesign::Pocket", "Pocket007")
pocket8.Profile = sketch9
pocket8.setExpression("Length", "Params.pocket8_length")

sketch10 = body.newObject("Sketcher::SketchObject", "Sketch009")
sketch10.AttachmentSupport = (doc.getObject("XY_Plane"), [""])
sketch10.MapMode = "FlatFace"
sketch10.AttachmentOffset = App.Placement(App.Vector(0, 0, 1.5), App.Rotation())
sketch10.addGeometry([
    Part.LineSegment(App.Vector(-9.8, 11, 0), App.Vector(-10.5, 11.8, 0)),
    Part.LineSegment(App.Vector(-10.5, 11.8, 0), App.Vector(-11.6, 11.8, 0)),
    Part.LineSegment(App.Vector(-11.6, 11.8, 0), App.Vector(-12.3, 11, 0)),
    Part.LineSegment(App.Vector(-12.3, 11, 0), App.Vector(-12.3, 7.5, 0)),
    Part.LineSegment(App.Vector(-12.3, 7.5, 0), App.Vector(-11.6, 6.8, 0)),
    Part.LineSegment(App.Vector(-11.6, 6.8, 0), App.Vector(-10.5, 6.8, 0)),
    Part.LineSegment(App.Vector(-10.5, 6.8, 0), App.Vector(-9.8, 7.5, 0)),
    Part.LineSegment(App.Vector(-9.8, 7.5, 0), App.Vector(-9.8, 11, 0)),
], False)
sketch10.addConstraint([
    Sketcher.Constraint("Coincident", 0, 2, 1, 1),
    Sketcher.Constraint("Coincident", 1, 2, 2, 1),
    Sketcher.Constraint("Coincident", 2, 2, 3, 1),
    Sketcher.Constraint("Coincident", 3, 2, 4, 1),
    Sketcher.Constraint("Coincident", 4, 2, 5, 1),
    Sketcher.Constraint("Coincident", 5, 2, 6, 1),
    Sketcher.Constraint("Coincident", 6, 2, 7, 1),
    Sketcher.Constraint("Coincident", 7, 2, 0, 1),
    Sketcher.Constraint("Horizontal", 1),
    Sketcher.Constraint("Vertical", 3),
    Sketcher.Constraint("Horizontal", 5),
    Sketcher.Constraint("Vertical", 7),
    Sketcher.Constraint("Perpendicular", 0, 2),
    Sketcher.Constraint("Perpendicular", 2, 4),
    Sketcher.Constraint("Perpendicular", 4, 6),
    Sketcher.Constraint("Horizontal", 3, 2, 6, 2),
    Sketcher.Constraint("Horizontal", 2, 2, 7, 2),
    Sketcher.Constraint("Vertical", 1, 2, 4, 2),
    Sketcher.Constraint("Vertical", 0, 2, 5, 2),
    Sketcher.Constraint("DistanceY", 4, 2, 1, 2, Q("5 mm")),
    Sketcher.Constraint("DistanceX", 1, 2, 1, 1, Q("1.12 mm")),
    Sketcher.Constraint("DistanceY", 3, 2, 3, 1, Q("3.58 mm")),
    Sketcher.Constraint("DistanceX", 0, 2, -1, 1, Q("10.52 mm")),
    Sketcher.Constraint("DistanceY", -1, 1, 0, 2, Q("11.75 mm")),
])
sketch10.setExpression("Constraints[20]", "Params.sketch10_width")
sketch10.setExpression("Constraints[21]", "Params.sketch10_height")
pocket9 = body.newObject("PartDesign::Pocket", "Pocket008")
pocket9.Profile = sketch10
pocket9.setExpression("Length", "Params.pocket9_length")

sketch11 = body.newObject("Sketcher::SketchObject", "Sketch010")
sketch11.AttachmentSupport = (doc.getObject("XY_Plane"), [""])
sketch11.MapMode = "FlatFace"
sketch11.AttachmentOffset = App.Placement(App.Vector(0, 0, 1.5), App.Rotation())
sketch11.addGeometry([
    Part.LineSegment(App.Vector(-6, -1, 0), App.Vector(-6, -11, 0)),
    Part.LineSegment(App.Vector(-6, -11, 0), App.Vector(1, -11, 0)),
    Part.LineSegment(App.Vector(1, -11, 0), App.Vector(1, -1, 0)),
    Part.LineSegment(App.Vector(1, -1, 0), App.Vector(-6, -1, 0)),
], False)
sketch11.addConstraint([
    Sketcher.Constraint("Coincident", 0, 2, 1, 1),
    Sketcher.Constraint("Coincident", 1, 2, 2, 1),
    Sketcher.Constraint("Coincident", 2, 2, 3, 1),
    Sketcher.Constraint("Coincident", 3, 2, 0, 1),
    Sketcher.Constraint("Vertical", 0),
    Sketcher.Constraint("Horizontal", 1),
    Sketcher.Constraint("Vertical", 2),
    Sketcher.Constraint("Horizontal", 3),
    Sketcher.Constraint("DistanceY", 0, 2, 0, 1, Q("10 mm")),
    Sketcher.Constraint("DistanceX", 1, 1, 1, 2, Q("6.9 mm")),
    Sketcher.Constraint("DistanceX", 0, 2, -1, 1, Q("5.95 mm")),
    Sketcher.Constraint("DistanceY", 0, 2, -1, 1, Q("10.75 mm")),
])
sketch11.setExpression("Constraints[8]", "Params.sketch11_height")
sketch11.setExpression("Constraints[9]", "Params.sketch11_width")
pocket10 = body.newObject("PartDesign::Pocket", "Pocket009")
pocket10.Profile = sketch11
pocket10.setExpression("Length", "Params.pocket10_length")

doc.recompute()
